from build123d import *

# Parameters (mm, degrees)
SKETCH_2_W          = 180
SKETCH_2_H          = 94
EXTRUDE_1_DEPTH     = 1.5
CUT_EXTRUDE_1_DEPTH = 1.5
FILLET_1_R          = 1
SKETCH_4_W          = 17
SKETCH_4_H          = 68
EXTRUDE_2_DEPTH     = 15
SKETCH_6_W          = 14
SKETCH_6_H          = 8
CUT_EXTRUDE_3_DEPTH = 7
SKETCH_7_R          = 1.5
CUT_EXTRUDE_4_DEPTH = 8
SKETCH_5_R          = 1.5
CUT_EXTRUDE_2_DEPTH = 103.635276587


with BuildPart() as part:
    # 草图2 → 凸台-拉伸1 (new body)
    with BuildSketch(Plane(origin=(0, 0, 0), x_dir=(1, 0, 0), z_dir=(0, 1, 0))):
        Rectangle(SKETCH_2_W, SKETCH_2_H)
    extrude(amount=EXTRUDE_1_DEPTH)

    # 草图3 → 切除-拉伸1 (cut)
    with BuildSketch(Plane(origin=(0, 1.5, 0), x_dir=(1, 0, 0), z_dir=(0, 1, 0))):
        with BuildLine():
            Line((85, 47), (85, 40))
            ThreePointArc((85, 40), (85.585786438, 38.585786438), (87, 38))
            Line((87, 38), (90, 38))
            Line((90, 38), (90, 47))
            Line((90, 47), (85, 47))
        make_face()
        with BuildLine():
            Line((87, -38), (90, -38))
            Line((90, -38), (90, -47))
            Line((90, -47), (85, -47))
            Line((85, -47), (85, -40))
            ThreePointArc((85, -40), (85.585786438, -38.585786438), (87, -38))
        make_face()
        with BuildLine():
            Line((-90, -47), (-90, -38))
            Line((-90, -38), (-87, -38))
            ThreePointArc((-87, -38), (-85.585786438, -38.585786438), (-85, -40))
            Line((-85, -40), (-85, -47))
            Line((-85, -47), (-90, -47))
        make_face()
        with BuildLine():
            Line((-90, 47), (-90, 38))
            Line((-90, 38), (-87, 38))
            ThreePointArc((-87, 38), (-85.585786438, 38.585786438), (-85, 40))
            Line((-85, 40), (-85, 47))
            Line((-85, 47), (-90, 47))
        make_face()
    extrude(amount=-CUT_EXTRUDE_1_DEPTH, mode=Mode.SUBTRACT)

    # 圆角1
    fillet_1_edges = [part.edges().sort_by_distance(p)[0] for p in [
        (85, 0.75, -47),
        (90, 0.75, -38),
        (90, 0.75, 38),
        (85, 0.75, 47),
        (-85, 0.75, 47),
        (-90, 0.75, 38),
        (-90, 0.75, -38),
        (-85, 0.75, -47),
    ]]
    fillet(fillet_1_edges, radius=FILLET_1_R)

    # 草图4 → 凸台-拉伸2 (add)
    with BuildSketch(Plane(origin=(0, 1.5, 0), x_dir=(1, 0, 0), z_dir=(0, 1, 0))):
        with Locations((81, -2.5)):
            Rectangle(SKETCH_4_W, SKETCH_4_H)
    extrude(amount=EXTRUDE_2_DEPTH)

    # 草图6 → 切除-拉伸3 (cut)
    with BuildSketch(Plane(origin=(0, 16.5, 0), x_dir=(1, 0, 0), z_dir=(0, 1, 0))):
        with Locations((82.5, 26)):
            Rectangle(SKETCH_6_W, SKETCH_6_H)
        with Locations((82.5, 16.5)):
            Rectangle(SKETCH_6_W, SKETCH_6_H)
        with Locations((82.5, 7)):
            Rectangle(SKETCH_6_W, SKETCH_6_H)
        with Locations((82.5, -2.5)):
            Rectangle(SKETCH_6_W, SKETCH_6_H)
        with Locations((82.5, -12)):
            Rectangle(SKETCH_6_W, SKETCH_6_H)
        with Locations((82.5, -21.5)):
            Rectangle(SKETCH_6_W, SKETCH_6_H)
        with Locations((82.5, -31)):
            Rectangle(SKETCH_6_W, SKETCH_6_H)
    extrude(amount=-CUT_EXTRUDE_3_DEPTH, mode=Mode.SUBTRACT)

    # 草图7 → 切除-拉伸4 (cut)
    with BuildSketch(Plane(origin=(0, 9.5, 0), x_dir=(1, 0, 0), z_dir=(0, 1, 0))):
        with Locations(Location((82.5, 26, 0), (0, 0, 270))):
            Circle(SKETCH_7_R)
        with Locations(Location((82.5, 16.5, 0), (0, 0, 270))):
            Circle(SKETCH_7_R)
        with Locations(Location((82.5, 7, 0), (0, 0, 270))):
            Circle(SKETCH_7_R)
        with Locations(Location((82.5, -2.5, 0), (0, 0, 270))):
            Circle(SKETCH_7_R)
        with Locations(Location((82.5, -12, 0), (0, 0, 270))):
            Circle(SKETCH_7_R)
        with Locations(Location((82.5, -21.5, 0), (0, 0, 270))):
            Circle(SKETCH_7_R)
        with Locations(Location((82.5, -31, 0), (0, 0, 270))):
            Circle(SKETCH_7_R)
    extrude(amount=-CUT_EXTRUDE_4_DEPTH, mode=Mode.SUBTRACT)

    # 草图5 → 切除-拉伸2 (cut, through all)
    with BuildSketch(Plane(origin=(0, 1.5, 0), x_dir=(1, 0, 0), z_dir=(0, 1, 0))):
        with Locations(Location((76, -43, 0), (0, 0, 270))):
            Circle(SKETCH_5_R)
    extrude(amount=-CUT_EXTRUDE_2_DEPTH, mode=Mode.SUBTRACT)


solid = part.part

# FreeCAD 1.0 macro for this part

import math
import FreeCAD as App
import Part
import Sketcher
Q = App.Units.Quantity


def edges_at(feature, points):
    """Names of the edges that pass closest to the given points."""
    edges = feature.Shape.Edges
    near = lambda p: min(range(len(edges)), key=lambda i: edges[i].distToShape(Part.Vertex(*p))[0])
    return sorted({f"Edge{near(p) + 1}" for p in points})

doc = App.newDocument("Part")
body = doc.addObject("PartDesign::Body", "Body")

# Sketch on XZ plane
sketch1 = body.newObject("Sketcher::SketchObject", "Sketch")
sketch1.AttachmentSupport = (doc.getObject("XZ_Plane"), [""])
sketch1.MapMode = "FlatFace"
sketch1.addGeometry(Part.LineSegment(App.Vector(-90, -47, 0), App.Vector(-90, 47, 0)), False)
sketch1.addGeometry(Part.LineSegment(App.Vector(-90, 47, 0), App.Vector(90, 47, 0)), False)
sketch1.addGeometry(Part.LineSegment(App.Vector(90, 47, 0), App.Vector(90, -47, 0)), False)
sketch1.addGeometry(Part.LineSegment(App.Vector(90, -47, 0), App.Vector(-90, -47, 0)), False)
sketch1.addConstraint(Sketcher.Constraint("Coincident", 0, 2, 1, 1))
sketch1.addConstraint(Sketcher.Constraint("Coincident", 1, 2, 2, 1))
sketch1.addConstraint(Sketcher.Constraint("Coincident", 2, 2, 3, 1))
sketch1.addConstraint(Sketcher.Constraint("Coincident", 3, 2, 0, 1))
sketch1.addConstraint(Sketcher.Constraint("Vertical", 0))
sketch1.addConstraint(Sketcher.Constraint("Horizontal", 1))
sketch1.addConstraint(Sketcher.Constraint("Vertical", 2))
sketch1.addConstraint(Sketcher.Constraint("Horizontal", 3))
sketch1.addConstraint(Sketcher.Constraint("Symmetric", 0, 2, 2, 2, -1, 1))
sketch1.addConstraint(Sketcher.Constraint("DistanceX", 1, 1, 1, 2, Q("180 mm")))
sketch1.addConstraint(Sketcher.Constraint("DistanceY", 0, 1, 0, 2, Q("94 mm")))
pad1 = body.newObject("PartDesign::Pad", "Pad")
pad1.Profile = sketch1
pad1.Length = 1.5
pad1.Reversed = True

# Sketch on XZ plane
sketch2 = body.newObject("Sketcher::SketchObject", "Sketch001")
sketch2.AttachmentSupport = (doc.getObject("XZ_Plane"), [""])
sketch2.MapMode = "FlatFace"
sketch2.AttachmentOffset = App.Placement(App.Vector(0, 0, -1.5), App.Rotation())
sketch2.addGeometry(Part.LineSegment(App.Vector(85, -47, 0), App.Vector(85, -40, 0)), False)
sketch2.addGeometry(Part.ArcOfCircle(Part.Circle(App.Vector(87, -40, 0), App.Vector(0, 0, 1), 2), math.radians(90), math.radians(180)), False)
sketch2.addGeometry(Part.LineSegment(App.Vector(87, -38, 0), App.Vector(90, -38, 0)), False)
sketch2.addGeometry(Part.LineSegment(App.Vector(90, -38, 0), App.Vector(90, -47, 0)), False)
sketch2.addGeometry(Part.LineSegment(App.Vector(90, -47, 0), App.Vector(85, -47, 0)), False)
sketch2.addGeometry(Part.LineSegment(App.Vector(90, 38, 0), App.Vector(87, 38, 0)), False)
sketch2.addGeometry(Part.ArcOfCircle(Part.Circle(App.Vector(87, 40, 0), App.Vector(0, 0, 1), 2), math.radians(-180), math.radians(-90)), False)
sketch2.addGeometry(Part.LineSegment(App.Vector(85, 40, 0), App.Vector(85, 47, 0)), False)
sketch2.addGeometry(Part.LineSegment(App.Vector(85, 47, 0), App.Vector(90, 47, 0)), False)
sketch2.addGeometry(Part.LineSegment(App.Vector(90, 47, 0), App.Vector(90, 38, 0)), False)
sketch2.addGeometry(Part.LineSegment(App.Vector(-90, 38, 0), App.Vector(-90, 47, 0)), False)
sketch2.addGeometry(Part.LineSegment(App.Vector(-90, 47, 0), App.Vector(-85, 47, 0)), False)
sketch2.addGeometry(Part.LineSegment(App.Vector(-85, 47, 0), App.Vector(-85, 40, 0)), False)
sketch2.addGeometry(Part.ArcOfCircle(Part.Circle(App.Vector(-87, 40, 0), App.Vector(0, 0, 1), 2), math.radians(-90), math.radians(0)), False)
sketch2.addGeometry(Part.LineSegment(App.Vector(-87, 38, 0), App.Vector(-90, 38, 0)), False)
sketch2.addGeometry(Part.LineSegment(App.Vector(-90, -47, 0), App.Vector(-90, -38, 0)), False)
sketch2.addGeometry(Part.LineSegment(App.Vector(-90, -38, 0), App.Vector(-87, -38, 0)), False)
sketch2.addGeometry(Part.ArcOfCircle(Part.Circle(App.Vector(-87, -40, 0), App.Vector(0, 0, 1), 2), math.radians(0), math.radians(90)), False)
sketch2.addGeometry(Part.LineSegment(App.Vector(-85, -40, 0), App.Vector(-85, -47, 0)), False)
sketch2.addGeometry(Part.LineSegment(App.Vector(-85, -47, 0), App.Vector(-90, -47, 0)), False)
sketch2.addConstraint(Sketcher.Constraint("Tangent", 0, 2, 1, 2))
sketch2.addConstraint(Sketcher.Constraint("Tangent", 1, 1, 2, 1))
sketch2.addConstraint(Sketcher.Constraint("Coincident", 2, 2, 3, 1))
sketch2.addConstraint(Sketcher.Constraint("Coincident", 3, 2, 4, 1))
sketch2.addConstraint(Sketcher.Constraint("Coincident", 4, 2, 0, 1))
sketch2.addConstraint(Sketcher.Constraint("Tangent", 5, 2, 6, 2))
sketch2.addConstraint(Sketcher.Constraint("Tangent", 6, 1, 7, 1))
sketch2.addConstraint(Sketcher.Constraint("Coincident", 7, 2, 8, 1))
sketch2.addConstraint(Sketcher.Constraint("Coincident", 8, 2, 9, 1))
sketch2.addConstraint(Sketcher.Constraint("Coincident", 9, 2, 5, 1))
sketch2.addConstraint(Sketcher.Constraint("Coincident", 10, 2, 11, 1))
sketch2.addConstraint(Sketcher.Constraint("Coincident", 11, 2, 12, 1))
sketch2.addConstraint(Sketcher.Constraint("Tangent", 12, 2, 13, 2))
sketch2.addConstraint(Sketcher.Constraint("Tangent", 13, 1, 14, 1))
sketch2.addConstraint(Sketcher.Constraint("Coincident", 14, 2, 10, 1))
sketch2.addConstraint(Sketcher.Constraint("Coincident", 15, 2, 16, 1))
sketch2.addConstraint(Sketcher.Constraint("Tangent", 16, 2, 17, 2))
sketch2.addConstraint(Sketcher.Constraint("Tangent", 17, 1, 18, 1))
sketch2.addConstraint(Sketcher.Constraint("Coincident", 18, 2, 19, 1))
sketch2.addConstraint(Sketcher.Constraint("Coincident", 19, 2, 15, 1))
sketch2.addConstraint(Sketcher.Constraint("Vertical", 0))
sketch2.addConstraint(Sketcher.Constraint("Horizontal", 2))
sketch2.addConstraint(Sketcher.Constraint("Vertical", 3))
sketch2.addConstraint(Sketcher.Constraint("Horizontal", 4))
sketch2.addConstraint(Sketcher.Constraint("Horizontal", 5))
sketch2.addConstraint(Sketcher.Constraint("Vertical", 7))
sketch2.addConstraint(Sketcher.Constraint("Horizontal", 8))
sketch2.addConstraint(Sketcher.Constraint("Vertical", 9))
sketch2.addConstraint(Sketcher.Constraint("Vertical", 10))
sketch2.addConstraint(Sketcher.Constraint("Horizontal", 11))
sketch2.addConstraint(Sketcher.Constraint("Vertical", 12))
sketch2.addConstraint(Sketcher.Constraint("Horizontal", 14))
sketch2.addConstraint(Sketcher.Constraint("Vertical", 15))
sketch2.addConstraint(Sketcher.Constraint("Horizontal", 16))
sketch2.addConstraint(Sketcher.Constraint("Vertical", 18))
sketch2.addConstraint(Sketcher.Constraint("Horizontal", 19))
sketch2.addConstraint(Sketcher.Constraint("Equal", 1, 6))
sketch2.addConstraint(Sketcher.Constraint("Equal", 6, 13))
sketch2.addConstraint(Sketcher.Constraint("Equal", 13, 17))
sketch2.addConstraint(Sketcher.Constraint("Symmetric", 1, 3, 13, 3, -1, 1))
sketch2.addConstraint(Sketcher.Constraint("Symmetric", 6, 3, 17, 3, -1, 1))
sketch2.addConstraint(Sketcher.Constraint("Symmetric", 3, 2, 10, 2, -1, 1))
sketch2.addConstraint(Sketcher.Constraint("Symmetric", 8, 2, 19, 2, -1, 1))
sketch2.addConstraint(Sketcher.Constraint("Symmetric", 6, 3, 13, 3, -2))
sketch2.addConstraint(Sketcher.Constraint("Symmetric", 8, 2, 10, 2, -2))
sketch2.addConstraint(Sketcher.Constraint("Radius", 1, Q("2 mm")))
sketch2.addConstraint(Sketcher.Constraint("DistanceX", 2, 1, 2, 2, Q("3 mm")))
sketch2.addConstraint(Sketcher.Constraint("DistanceY", 0, 1, 0, 2, Q("7 mm")))
sketch2.addConstraint(Sketcher.Constraint("DistanceX", -1, 1, 1, 3, Q("87 mm")))
sketch2.addConstraint(Sketcher.Constraint("DistanceY", 1, 3, -1, 1, Q("40 mm")))
pocket1 = body.newObject("PartDesign::Pocket", "Pocket")
pocket1.Profile = sketch2
pocket1.Length = 1.5
pocket1.Reversed = True
doc.recompute()

fillet = body.newObject("PartDesign::Fillet", "Fillet")
fillet.Base = (pocket1, edges_at(pocket1, [
    (85, 0.75, -47),
    (90, 0.75, -38),
    (90, 0.75, 38),
    (85, 0.75, 47),
    (-85, 0.75, 47),
    (-90, 0.75, 38),
    (-90, 0.75, -38),
    (-85, 0.75, -47),
]))
fillet.Radius = 1

# Sketch on XZ plane
sketch3 = body.newObject("Sketcher::SketchObject", "Sketch002")
sketch3.AttachmentSupport = (doc.getObject("XZ_Plane"), [""])
sketch3.MapMode = "FlatFace"
sketch3.AttachmentOffset = App.Placement(App.Vector(0, 0, -1.5), App.Rotation())
sketch3.addGeometry(Part.LineSegment(App.Vector(72, -32, 0), App.Vector(72, 36, 0)), False)
sketch3.addGeometry(Part.LineSegment(App.Vector(72, 36, 0), App.Vector(90, 36, 0)), False)
sketch3.addGeometry(Part.LineSegment(App.Vector(90, 36, 0), App.Vector(90, -32, 0)), False)
sketch3.addGeometry(Part.LineSegment(App.Vector(90, -32, 0), App.Vector(72, -32, 0)), False)
sketch3.addConstraint(Sketcher.Constraint("Coincident", 0, 2, 1, 1))
sketch3.addConstraint(Sketcher.Constraint("Coincident", 1, 2, 2, 1))
sketch3.addConstraint(Sketcher.Constraint("Coincident", 2, 2, 3, 1))
sketch3.addConstraint(Sketcher.Constraint("Coincident", 3, 2, 0, 1))
sketch3.addConstraint(Sketcher.Constraint("Vertical", 0))
sketch3.addConstraint(Sketcher.Constraint("Horizontal", 1))
sketch3.addConstraint(Sketcher.Constraint("Vertical", 2))
sketch3.addConstraint(Sketcher.Constraint("Horizontal", 3))
sketch3.addConstraint(Sketcher.Constraint("DistanceX", 1, 1, 1, 2, Q("17 mm")))
sketch3.addConstraint(Sketcher.Constraint("DistanceY", 0, 1, 0, 2, Q("68 mm")))
sketch3.addConstraint(Sketcher.Constraint("DistanceX", -1, 1, 0, 2, Q("72.5 mm")))
sketch3.addConstraint(Sketcher.Constraint("DistanceY", -1, 1, 0, 2, Q("36.5 mm")))
pad2 = body.newObject("PartDesign::Pad", "Pad001")
pad2.Profile = sketch3
pad2.Length = 15
pad2.Reversed = True

# Sketch on XZ plane
sketch4 = body.newObject("Sketcher::SketchObject", "Sketch003")
sketch4.AttachmentSupport = (doc.getObject("XZ_Plane"), [""])
sketch4.MapMode = "FlatFace"
sketch4.AttachmentOffset = App.Placement(App.Vector(0, 0, -16.5), App.Rotation())
sketch4.addGeometry(Part.LineSegment(App.Vector(76, -30, 0), App.Vector(76, -22, 0)), False)
sketch4.addGeometry(Part.LineSegment(App.Vector(76, -22, 0), App.Vector(90, -22, 0)), False)
sketch4.addGeometry(Part.LineSegment(App.Vector(90, -22, 0), App.Vector(90, -30, 0)), False)
sketch4.addGeometry(Part.LineSegment(App.Vector(90, -30, 0), App.Vector(76, -30, 0)), False)
sketch4.addGeometry(Part.LineSegment(App.Vector(76, -20, 0), App.Vector(76, -12, 0)), False)
sketch4.addGeometry(Part.LineSegment(App.Vector(76, -12, 0), App.Vector(90, -12, 0)), False)
sketch4.addGeometry(Part.LineSegment(App.Vector(90, -12, 0), App.Vector(90, -20, 0)), False)
sketch4.addGeometry(Part.LineSegment(App.Vector(90, -20, 0), App.Vector(76, -20, 0)), False)
sketch4.addGeometry(Part.LineSegment(App.Vector(76, -11, 0), App.Vector(76, -3, 0)), False)
sketch4.addGeometry(Part.LineSegment(App.Vector(76, -3, 0), App.Vector(90, -3, 0)), False)
sketch4.addGeometry(Part.LineSegment(App.Vector(90, -3, 0), App.Vector(90, -11, 0)), False)
sketch4.addGeometry(Part.LineSegment(App.Vector(90, -11, 0), App.Vector(76, -11, 0)), False)
sketch4.addGeometry(Part.LineSegment(App.Vector(76, -2, 0), App.Vector(76, 6, 0)), False)
sketch4.addGeometry(Part.LineSegment(App.Vector(76, 6, 0), App.Vector(90, 6, 0)), False)
sketch4.addGeometry(Part.LineSegment(App.Vector(90, 6, 0), App.Vector(90, -2, 0)), False)
sketch4.addGeometry(Part.LineSegment(App.Vector(90, -2, 0), App.Vector(76, -2, 0)), False)
sketch4.addGeometry(Part.LineSegment(App.Vector(76, 8, 0), App.Vector(76, 16, 0)), False)
sketch4.addGeometry(Part.LineSegment(App.Vector(76, 16, 0), App.Vector(90, 16, 0)), False)
sketch4.addGeometry(Part.LineSegment(App.Vector(90, 16, 0), App.Vector(90, 8, 0)), False)
sketch4.addGeometry(Part.LineSegment(App.Vector(90, 8, 0), App.Vector(76, 8, 0)), False)
sketch4.addGeometry(Part.LineSegment(App.Vector(76, 18, 0), App.Vector(76, 26, 0)), False)
sketch4.addGeometry(Part.LineSegment(App.Vector(76, 26, 0), App.Vector(90, 26, 0)), False)
sketch4.addGeometry(Part.LineSegment(App.Vector(90, 26, 0), App.Vector(90, 18, 0)), False)
sketch4.addGeometry(Part.LineSegment(App.Vector(90, 18, 0), App.Vector(76, 18, 0)), False)
sketch4.addGeometry(Part.LineSegment(App.Vector(76, 27, 0), App.Vector(76, 35, 0)), False)
sketch4.addGeometry(Part.LineSegment(App.Vector(76, 35, 0), App.Vector(90, 35, 0)), False)
sketch4.addGeometry(Part.LineSegment(App.Vector(90, 35, 0), App.Vector(90, 27, 0)), False)
sketch4.addGeometry(Part.LineSegment(App.Vector(90, 27, 0), App.Vector(76, 27, 0)), False)
sketch4.addConstraint(Sketcher.Constraint("Coincident", 0, 2, 1, 1))
sketch4.addConstraint(Sketcher.Constraint("Coincident", 1, 2, 2, 1))
sketch4.addConstraint(Sketcher.Constraint("Coincident", 2, 2, 3, 1))
sketch4.addConstraint(Sketcher.Constraint("Coincident", 3, 2, 0, 1))
sketch4.addConstraint(Sketcher.Constraint("Coincident", 4, 2, 5, 1))
sketch4.addConstraint(Sketcher.Constraint("Coincident", 5, 2, 6, 1))
sketch4.addConstraint(Sketcher.Constraint("Coincident", 6, 2, 7, 1))
sketch4.addConstraint(Sketcher.Constraint("Coincident", 7, 2, 4, 1))
sketch4.addConstraint(Sketcher.Constraint("Coincident", 8, 2, 9, 1))
sketch4.addConstraint(Sketcher.Constraint("Coincident", 9, 2, 10, 1))
sketch4.addConstraint(Sketcher.Constraint("Coincident", 10, 2, 11, 1))
sketch4.addConstraint(Sketcher.Constraint("Coincident", 11, 2, 8, 1))
sketch4.addConstraint(Sketcher.Constraint("Coincident", 12, 2, 13, 1))
sketch4.addConstraint(Sketcher.Constraint("Coincident", 13, 2, 14, 1))
sketch4.addConstraint(Sketcher.Constraint("Coincident", 14, 2, 15, 1))
sketch4.addConstraint(Sketcher.Constraint("Coincident", 15, 2, 12, 1))
sketch4.addConstraint(Sketcher.Constraint("Coincident", 16, 2, 17, 1))
sketch4.addConstraint(Sketcher.Constraint("Coincident", 17, 2, 18, 1))
sketch4.addConstraint(Sketcher.Constraint("Coincident", 18, 2, 19, 1))
sketch4.addConstraint(Sketcher.Constraint("Coincident", 19, 2, 16, 1))
sketch4.addConstraint(Sketcher.Constraint("Coincident", 20, 2, 21, 1))
sketch4.addConstraint(Sketcher.Constraint("Coincident", 21, 2, 22, 1))
sketch4.addConstraint(Sketcher.Constraint("Coincident", 22, 2, 23, 1))
sketch4.addConstraint(Sketcher.Constraint("Coincident", 23, 2, 20, 1))
sketch4.addConstraint(Sketcher.Constraint("Coincident", 24, 2, 25, 1))
sketch4.addConstraint(Sketcher.Constraint("Coincident", 25, 2, 26, 1))
sketch4.addConstraint(Sketcher.Constraint("Coincident", 26, 2, 27, 1))
sketch4.addConstraint(Sketcher.Constraint("Coincident", 27, 2, 24, 1))
sketch4.addConstraint(Sketcher.Constraint("Vertical", 0))
sketch4.addConstraint(Sketcher.Constraint("Horizontal", 1))
sketch4.addConstraint(Sketcher.Constraint("Vertical", 2))
sketch4.addConstraint(Sketcher.Constraint("Horizontal", 3))
sketch4.addConstraint(Sketcher.Constraint("Vertical", 4))
sketch4.addConstraint(Sketcher.Constraint("Horizontal", 5))
sketch4.addConstraint(Sketcher.Constraint("Vertical", 6))
sketch4.addConstraint(Sketcher.Constraint("Horizontal", 7))
sketch4.addConstraint(Sketcher.Constraint("Vertical", 8))
sketch4.addConstraint(Sketcher.Constraint("Horizontal", 9))
sketch4.addConstraint(Sketcher.Constraint("Vertical", 10))
sketch4.addConstraint(Sketcher.Constraint("Horizontal", 11))
sketch4.addConstraint(Sketcher.Constraint("Vertical", 12))
sketch4.addConstraint(Sketcher.Constraint("Horizontal", 13))
sketch4.addConstraint(Sketcher.Constraint("Vertical", 14))
sketch4.addConstraint(Sketcher.Constraint("Horizontal", 15))
sketch4.addConstraint(Sketcher.Constraint("Vertical", 16))
sketch4.addConstraint(Sketcher.Constraint("Horizontal", 17))
sketch4.addConstraint(Sketcher.Constraint("Vertical", 18))
sketch4.addConstraint(Sketcher.Constraint("Horizontal", 19))
sketch4.addConstraint(Sketcher.Constraint("Vertical", 20))
sketch4.addConstraint(Sketcher.Constraint("Horizontal", 21))
sketch4.addConstraint(Sketcher.Constraint("Vertical", 22))
sketch4.addConstraint(Sketcher.Constraint("Horizontal", 23))
sketch4.addConstraint(Sketcher.Constraint("Vertical", 24))
sketch4.addConstraint(Sketcher.Constraint("Horizontal", 25))
sketch4.addConstraint(Sketcher.Constraint("Vertical", 26))
sketch4.addConstraint(Sketcher.Constraint("Horizontal", 27))
sketch4.addConstraint(Sketcher.Constraint("Vertical", 3, 2, 4, 2))
sketch4.addConstraint(Sketcher.Constraint("Vertical", 2, 2, 5, 2))
sketch4.addConstraint(Sketcher.Constraint("Vertical", 7, 2, 8, 2))
sketch4.addConstraint(Sketcher.Constraint("Vertical", 6, 2, 9, 2))
sketch4.addConstraint(Sketcher.Constraint("Vertical", 11, 2, 12, 2))
sketch4.addConstraint(Sketcher.Constraint("Vertical", 10, 2, 13, 2))
sketch4.addConstraint(Sketcher.Constraint("Vertical", 15, 2, 16, 2))
sketch4.addConstraint(Sketcher.Constraint("Vertical", 14, 2, 17, 2))
sketch4.addConstraint(Sketcher.Constraint("Vertical", 19, 2, 20, 2))
sketch4.addConstraint(Sketcher.Constraint("Vertical", 18, 2, 21, 2))
sketch4.addConstraint(Sketcher.Constraint("Vertical", 23, 2, 24, 2))
sketch4.addConstraint(Sketcher.Constraint("Vertical", 22, 2, 25, 2))
sketch4.addConstraint(Sketcher.Constraint("Equal", 2, 4))
sketch4.addConstraint(Sketcher.Constraint("Equal", 6, 8))
sketch4.addConstraint(Sketcher.Constraint("Equal", 10, 12))
sketch4.addConstraint(Sketcher.Constraint("Equal", 14, 16))
sketch4.addConstraint(Sketcher.Constraint("Equal", 18, 20))
sketch4.addConstraint(Sketcher.Constraint("Equal", 22, 24))
sketch4.addConstraint(Sketcher.Constraint("DistanceX", 1, 1, 1, 2, Q("14 mm")))
sketch4.addConstraint(Sketcher.Constraint("DistanceY", 0, 1, 0, 2, Q("8 mm")))
sketch4.addConstraint(Sketcher.Constraint("DistanceY", 0, 2, -1, 1, Q("22 mm")))
sketch4.addConstraint(Sketcher.Constraint("DistanceY", 8, 2, -1, 1, Q("3 mm")))
sketch4.addConstraint(Sketcher.Constraint("DistanceY", -1, 1, 16, 2, Q("16 mm")))
sketch4.addConstraint(Sketcher.Constraint("DistanceY", -1, 1, 24, 2, Q("35 mm")))
sketch4.addConstraint(Sketcher.Constraint("DistanceY", 4, 2, 12, 2, Q("19 mm")))
sketch4.addConstraint(Sketcher.Constraint("DistanceY", 12, 2, 20, 2, Q("19 mm")))
sketch4.addConstraint(Sketcher.Constraint("DistanceX", -1, 1, 0, 2, Q("75.5 mm")))
sketch4.addConstraint(Sketcher.Constraint("DistanceY", 4, 2, -1, 1, Q("12.5 mm")))
pocket2 = body.newObject("PartDesign::Pocket", "Pocket001")
pocket2.Profile = sketch4
pocket2.Length = 7
pocket2.Reversed = True

# Sketch on XZ plane
sketch5 = body.newObject("Sketcher::SketchObject", "Sketch004")
sketch5.AttachmentSupport = (doc.getObject("XZ_Plane"), [""])
sketch5.MapMode = "FlatFace"
sketch5.AttachmentOffset = App.Placement(App.Vector(0, 0, -9.5), App.Rotation())
sketch5.addGeometry(Part.Circle(App.Vector(82.5, -26, 0), App.Vector(0, 0, 1), 1.5), False)
sketch5.addGeometry(Part.Circle(App.Vector(82.5, -16.5, 0), App.Vector(0, 0, 1), 1.5), False)
sketch5.addGeometry(Part.Circle(App.Vector(82.5, -7, 0), App.Vector(0, 0, 1), 1.5), False)
sketch5.addGeometry(Part.Circle(App.Vector(82.5, 2.5, 0), App.Vector(0, 0, 1), 1.5), False)
sketch5.addGeometry(Part.Circle(App.Vector(82.5, 12, 0), App.Vector(0, 0, 1), 1.5), False)
sketch5.addGeometry(Part.Circle(App.Vector(82.5, 21.5, 0), App.Vector(0, 0, 1), 1.5), False)
sketch5.addGeometry(Part.Circle(App.Vector(82.5, 31, 0), App.Vector(0, 0, 1), 1.5), False)
sketch5.addConstraint(Sketcher.Constraint("Equal", 0, 1))
sketch5.addConstraint(Sketcher.Constraint("Equal", 1, 2))
sketch5.addConstraint(Sketcher.Constraint("Equal", 2, 3))
sketch5.addConstraint(Sketcher.Constraint("Equal", 3, 4))
sketch5.addConstraint(Sketcher.Constraint("Equal", 4, 5))
sketch5.addConstraint(Sketcher.Constraint("Equal", 5, 6))
sketch5.addConstraint(Sketcher.Constraint("Vertical", 0, 3, 1, 3))
sketch5.addConstraint(Sketcher.Constraint("Vertical", 1, 3, 2, 3))
sketch5.addConstraint(Sketcher.Constraint("Vertical", 2, 3, 3, 3))
sketch5.addConstraint(Sketcher.Constraint("Vertical", 3, 3, 4, 3))
sketch5.addConstraint(Sketcher.Constraint("Vertical", 4, 3, 5, 3))
sketch5.addConstraint(Sketcher.Constraint("Vertical", 5, 3, 6, 3))
sketch5.addConstraint(Sketcher.Constraint("Diameter", 0, Q("3 mm")))
sketch5.addConstraint(Sketcher.Constraint("DistanceY", 0, 3, -1, 1, Q("26 mm")))
sketch5.addConstraint(Sketcher.Constraint("DistanceY", 2, 3, -1, 1, Q("7 mm")))
sketch5.addConstraint(Sketcher.Constraint("DistanceY", -1, 1, 4, 3, Q("12 mm")))
sketch5.addConstraint(Sketcher.Constraint("DistanceY", -1, 1, 6, 3, Q("31 mm")))
sketch5.addConstraint(Sketcher.Constraint("DistanceY", 1, 3, 3, 3, Q("19 mm")))
sketch5.addConstraint(Sketcher.Constraint("DistanceY", 3, 3, 5, 3, Q("19 mm")))
sketch5.addConstraint(Sketcher.Constraint("DistanceX", -1, 1, 0, 3, Q("82.5 mm")))
sketch5.addConstraint(Sketcher.Constraint("DistanceY", 1, 3, -1, 1, Q("16.5 mm")))
pocket3 = body.newObject("PartDesign::Pocket", "Pocket002")
pocket3.Profile = sketch5
pocket3.Length = 8
pocket3.Reversed = True

# Sketch on XZ plane
sketch6 = body.newObject("Sketcher::SketchObject", "Sketch005")
sketch6.AttachmentSupport = (doc.getObject("XZ_Plane"), [""])
sketch6.MapMode = "FlatFace"
sketch6.AttachmentOffset = App.Placement(App.Vector(0, 0, -1.5), App.Rotation())
sketch6.addGeometry(Part.Circle(App.Vector(76, 43, 0), App.Vector(0, 0, 1), 1.5), False)
sketch6.addConstraint(Sketcher.Constraint("Diameter", 0, Q("3 mm")))
sketch6.addConstraint(Sketcher.Constraint("DistanceX", -1, 1, 0, 3, Q("76 mm")))
sketch6.addConstraint(Sketcher.Constraint("DistanceY", -1, 1, 0, 3, Q("43 mm")))
pocket4 = body.newObject("PartDesign::Pocket", "Pocket003")
pocket4.Profile = sketch6
pocket4.Type = "ThroughAll"
pocket4.Reversed = True

doc.recompute()
